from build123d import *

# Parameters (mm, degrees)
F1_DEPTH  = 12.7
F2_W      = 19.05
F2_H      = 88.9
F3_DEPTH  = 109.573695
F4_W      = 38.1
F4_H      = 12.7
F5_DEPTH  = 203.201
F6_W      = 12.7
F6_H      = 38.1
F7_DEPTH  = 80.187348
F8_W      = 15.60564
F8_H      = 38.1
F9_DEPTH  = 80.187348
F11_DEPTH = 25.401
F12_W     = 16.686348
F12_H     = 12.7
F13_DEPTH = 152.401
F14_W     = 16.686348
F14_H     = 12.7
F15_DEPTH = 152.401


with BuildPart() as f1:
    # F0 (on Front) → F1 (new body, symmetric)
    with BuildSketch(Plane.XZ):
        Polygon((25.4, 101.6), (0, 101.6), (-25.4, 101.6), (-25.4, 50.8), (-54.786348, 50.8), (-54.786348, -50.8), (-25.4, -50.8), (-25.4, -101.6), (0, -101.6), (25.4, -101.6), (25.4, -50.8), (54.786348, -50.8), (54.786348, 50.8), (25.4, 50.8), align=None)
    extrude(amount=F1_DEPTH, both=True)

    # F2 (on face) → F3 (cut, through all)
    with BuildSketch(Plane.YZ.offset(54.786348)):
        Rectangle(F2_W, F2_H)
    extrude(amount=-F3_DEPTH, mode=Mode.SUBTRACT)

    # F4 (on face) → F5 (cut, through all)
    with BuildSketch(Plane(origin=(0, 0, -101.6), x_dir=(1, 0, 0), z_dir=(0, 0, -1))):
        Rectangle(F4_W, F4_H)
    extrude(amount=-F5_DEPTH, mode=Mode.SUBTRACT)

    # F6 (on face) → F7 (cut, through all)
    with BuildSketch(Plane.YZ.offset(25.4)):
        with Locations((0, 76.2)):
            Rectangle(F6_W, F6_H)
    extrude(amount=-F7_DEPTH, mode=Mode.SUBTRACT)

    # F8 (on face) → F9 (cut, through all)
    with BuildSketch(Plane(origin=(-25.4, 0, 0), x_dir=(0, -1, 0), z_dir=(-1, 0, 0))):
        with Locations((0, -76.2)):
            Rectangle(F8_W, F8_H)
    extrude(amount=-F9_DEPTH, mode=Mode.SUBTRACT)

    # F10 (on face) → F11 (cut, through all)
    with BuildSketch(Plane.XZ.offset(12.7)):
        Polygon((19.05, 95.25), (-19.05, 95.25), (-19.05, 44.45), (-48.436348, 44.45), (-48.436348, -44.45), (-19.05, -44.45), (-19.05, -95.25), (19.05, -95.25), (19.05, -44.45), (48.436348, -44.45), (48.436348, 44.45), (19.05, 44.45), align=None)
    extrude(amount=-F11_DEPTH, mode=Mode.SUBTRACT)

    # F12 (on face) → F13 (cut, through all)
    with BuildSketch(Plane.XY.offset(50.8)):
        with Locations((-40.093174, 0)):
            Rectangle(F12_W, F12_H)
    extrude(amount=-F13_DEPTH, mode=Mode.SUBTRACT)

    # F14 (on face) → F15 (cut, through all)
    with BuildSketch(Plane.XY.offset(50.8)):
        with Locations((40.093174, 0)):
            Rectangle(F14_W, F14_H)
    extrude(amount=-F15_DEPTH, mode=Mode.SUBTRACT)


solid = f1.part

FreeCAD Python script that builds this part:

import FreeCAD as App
import Part
import Sketcher
Q = App.Units.Quantity

doc = App.newDocument("Part")
body = doc.addObject("PartDesign::Body", "Body")

# Sketch on XZ plane
sketch1 = doc.addObject("Sketcher::SketchObject", "Sketch")
body.addObject(sketch1)
sketch1.AttachmentSupport = (doc.XZ_Plane, [""])
sketch1.MapMode = "FlatFace"
sketch1.addGeometry([
    Part.LineSegment(App.Vector(25.4, 101.6, 0), App.Vector(-25.4, 101.6, 0)),  # 0
    Part.LineSegment(App.Vector(-25.4, 101.6, 0), App.Vector(-25.4, 50.8, 0)),  # 1
    Part.LineSegment(App.Vector(-25.4, 50.8, 0), App.Vector(-54.786348, 50.8, 0)),  # 2
    Part.LineSegment(App.Vector(-54.786348, 50.8, 0), App.Vector(-54.786348, -50.8, 0)),  # 3
    Part.LineSegment(App.Vector(-54.786348, -50.8, 0), App.Vector(-25.4, -50.8, 0)),  # 4
    Part.LineSegment(App.Vector(-25.4, -50.8, 0), App.Vector(-25.4, -101.6, 0)),  # 5
    Part.LineSegment(App.Vector(-25.4, -101.6, 0), App.Vector(25.4, -101.6, 0)),  # 6
    Part.LineSegment(App.Vector(25.4, -101.6, 0), App.Vector(25.4, -50.8, 0)),  # 7
    Part.LineSegment(App.Vector(25.4, -50.8, 0), App.Vector(54.786348, -50.8, 0)),  # 8
    Part.LineSegment(App.Vector(54.786348, -50.8, 0), App.Vector(54.786348, 50.8, 0)),  # 9
    Part.LineSegment(App.Vector(54.786348, 50.8, 0), App.Vector(25.4, 50.8, 0)),  # 10
    Part.LineSegment(App.Vector(25.4, 50.8, 0), App.Vector(25.4, 101.6, 0)),  # 11
], False)
sketch1.addConstraint([
    Sketcher.Constraint("Coincident", 0, 2, 1, 1),
    Sketcher.Constraint("Coincident", 1, 2, 2, 1),
    Sketcher.Constraint("Coincident", 2, 2, 3, 1),
    Sketcher.Constraint("Coincident", 3, 2, 4, 1),
    Sketcher.Constraint("Coincident", 4, 2, 5, 1),
    Sketcher.Constraint("Coincident", 5, 2, 6, 1),
    Sketcher.Constraint("Coincident", 6, 2, 7, 1),
    Sketcher.Constraint("Coincident", 7, 2, 8, 1),
    Sketcher.Constraint("Coincident", 8, 2, 9, 1),
    Sketcher.Constraint("Coincident", 9, 2, 10, 1),
    Sketcher.Constraint("Coincident", 10, 2, 11, 1),
    Sketcher.Constraint("Coincident", 11, 2, 0, 1),
    Sketcher.Constraint("Horizontal", 0),
    Sketcher.Constraint("Vertical", 1),
    Sketcher.Constraint("Horizontal", 2),
    Sketcher.Constraint("Vertical", 3),
    Sketcher.Constraint("Horizontal", 4),
    Sketcher.Constraint("Vertical", 5),
    Sketcher.Constraint("Horizontal", 6),
    Sketcher.Constraint("Vertical", 7),
    Sketcher.Constraint("Horizontal", 8),
    Sketcher.Constraint("Vertical", 9),
    Sketcher.Constraint("Horizontal", 10),
    Sketcher.Constraint("Vertical", 11),
    Sketcher.Constraint("Symmetric", 0, 2, 6, 2, -1, 1),
    Sketcher.Constraint("Symmetric", 2, 2, 8, 2, -1, 1),
    Sketcher.Constraint("Symmetric", 4, 2, 10, 2, -1, 1),
    Sketcher.Constraint("Symmetric", 4, 2, 7, 2, -2),
    Sketcher.Constraint("Equal", 6, 1),
    Sketcher.Constraint("DistanceX", 0, 2, 0, 1, Q("2 in")),
    Sketcher.Constraint("DistanceY", 3, 2, 3, 1, Q("4 in")),
    Sketcher.Constraint("DistanceX", 2, 2, 2, 1, 29.386348),
])
pad1 = doc.addObject("PartDesign::Pad", "Pad")
body.addObject(pad1)
pad1.Profile = sketch1
pad1.Length = Q("1 in")
pad1.Midplane = True

# Sketch on YZ plane
sketch2 = doc.addObject("Sketcher::SketchObject", "Sketch001")
body.addObject(sketch2)
sketch2.AttachmentSupport = (doc.YZ_Plane, [""])
sketch2.MapMode = "FlatFace"
sketch2.AttachmentOffset = App.Placement(App.Vector(0, 0, 54.786348), App.Rotation())
sketch2.addGeometry([
    Part.LineSegment(App.Vector(-9.525, 44.45, 0), App.Vector(-9.525, -44.45, 0)),
    Part.LineSegment(App.Vector(-9.525, -44.45, 0), App.Vector(9.525, -44.45, 0)),
    Part.LineSegment(App.Vector(9.525, -44.45, 0), App.Vector(9.525, 44.45, 0)),
    Part.LineSegment(App.Vector(9.525, 44.45, 0), App.Vector(-9.525, 44.45, 0)),
], False)
sketch2.addConstraint([
    Sketcher.Constraint("Coincident", 0, 2, 1, 1),
    Sketcher.Constraint("Coincident", 1, 2, 2, 1),
    Sketcher.Constraint("Coincident", 2, 2, 3, 1),
    Sketcher.Constraint("Coincident", 3, 2, 0, 1),
    Sketcher.Constraint("Vertical", 0),
    Sketcher.Constraint("Horizontal", 1),
    Sketcher.Constraint("Vertical", 2),
    Sketcher.Constraint("Horizontal", 3),
    Sketcher.Constraint("Symmetric", 0, 2, 2, 2, -1, 1),
    Sketcher.Constraint("DistanceY", 0, 2, 0, 1, Q("3.5 in")),
    Sketcher.Constraint("DistanceX", 1, 1, 1, 2, Q("0.75 in")),
])
pocket1 = doc.addObject("PartDesign::Pocket", "Pocket")
body.addObject(pocket1)
pocket1.Profile = sketch2
pocket1.Type = "ThroughAll"

# Sketch on XY plane
sketch3 = doc.addObject("Sketcher::SketchObject", "Sketch002")
body.addObject(sketch3)
sketch3.AttachmentSupport = (doc.XY_Plane, [""])
sketch3.MapMode = "FlatFace"
sketch3.AttachmentOffset = App.Placement(App.Vector(0, 0, -4 * 25.4), App.Rotation())
sketch3.addGeometry([
    Part.LineSegment(App.Vector(-19.05, -6.35, 0), App.Vector(-19.05, 6.35, 0)),
    Part.LineSegment(App.Vector(-19.05, 6.35, 0), App.Vector(19.05, 6.35, 0)),
    Part.LineSegment(App.Vector(19.05, 6.35, 0), App.Vector(19.05, -6.35, 0)),
    Part.LineSegment(App.Vector(19.05, -6.35, 0), App.Vector(-19.05, -6.35, 0)),
], False)
sketch3.addConstraint([
    Sketcher.Constraint("Coincident", 0, 2, 1, 1),
    Sketcher.Constraint("Coincident", 1, 2, 2, 1),
    Sketcher.Constraint("Coincident", 2, 2, 3, 1),
    Sketcher.Constraint("Coincident", 3, 2, 0, 1),
    Sketcher.Constraint("Vertical", 0),
    Sketcher.Constraint("Horizontal", 1),
    Sketcher.Constraint("Vertical", 2),
    Sketcher.Constraint("Horizontal", 3),
    Sketcher.Constraint("Symmetric", 0, 2, 2, 2, -1, 1),
    Sketcher.Constraint("DistanceX", 1, 1, 1, 2, Q("1.5 in")),
    Sketcher.Constraint("DistanceY", 0, 1, 0, 2, Q("0.5 in")),
])
pocket2 = doc.addObject("PartDesign::Pocket", "Pocket001")
body.addObject(pocket2)
pocket2.Profile = sketch3
pocket2.Type = "ThroughAll"
pocket2.Reversed = True

# Sketch on YZ plane
sketch4 = doc.addObject("Sketcher::SketchObject", "Sketch003")
body.addObject(sketch4)
sketch4.AttachmentSupport = (doc.YZ_Plane, [""])
sketch4.MapMode = "FlatFace"
sketch4.AttachmentOffset = App.Placement(App.Vector(0, 0, 1 * 25.4), App.Rotation())
sketch4.addGeometry([
    Part.LineSegment(App.Vector(-6.35, 95.25, 0), App.Vector(-6.35, 57.15, 0)),
    Part.LineSegment(App.Vector(-6.35, 57.15, 0), App.Vector(6.35, 57.15, 0)),
    Part.LineSegment(App.Vector(6.35, 57.15, 0), App.Vector(6.35, 95.25, 0)),
    Part.LineSegment(App.Vector(6.35, 95.25, 0), App.Vector(-6.35, 95.25, 0)),
], False)
sketch4.addConstraint([
    Sketcher.Constraint("Coincident", 0, 2, 1, 1),
    Sketcher.Constraint("Coincident", 1, 2, 2, 1),
    Sketcher.Constraint("Coincident", 2, 2, 3, 1),
    Sketcher.Constraint("Coincident", 3, 2, 0, 1),
    Sketcher.Constraint("Vertical", 0),
    Sketcher.Constraint("Horizontal", 1),
    Sketcher.Constraint("Vertical", 2),
    Sketcher.Constraint("Horizontal", 3),
    Sketcher.Constraint("DistanceX", 1, 1, 1, 2, Q("0.5 in")),
    Sketcher.Constraint("DistanceY", 0, 2, 0, 1, Q("1.5 in")),
    Sketcher.Constraint("DistanceX", 0, 2, -1, 1, Q("0.25 in")),
    Sketcher.Constraint("DistanceY", -1, 1, 0, 2, Q("2.25 in")),
])
pocket3 = doc.addObject("PartDesign::Pocket", "Pocket002")
body.addObject(pocket3)
pocket3.Profile = sketch4
pocket3.Type = "ThroughAll"

# Sketch on YZ plane
sketch5 = doc.addObject("Sketcher::SketchObject", "Sketch004")
body.addObject(sketch5)
sketch5.AttachmentSupport = (doc.YZ_Plane, [""])
sketch5.MapMode = "FlatFace"
sketch5.AttachmentOffset = App.Placement(App.Vector(0, 0, -1 * 25.4), App.Rotation())
sketch5.addGeometry([
    Part.LineSegment(App.Vector(7.80282, -57.15, 0), App.Vector(7.80282, -95.25, 0)),
    Part.LineSegment(App.Vector(7.80282, -95.25, 0), App.Vector(-7.80282, -95.25, 0)),
    Part.LineSegment(App.Vector(-7.80282, -95.25, 0), App.Vector(-7.80282, -57.15, 0)),
    Part.LineSegment(App.Vector(-7.80282, -57.15, 0), App.Vector(7.80282, -57.15, 0)),
], False)
sketch5.addConstraint([
    Sketcher.Constraint("Coincident", 0, 2, 1, 1),
    Sketcher.Constraint("Coincident", 1, 2, 2, 1),
    Sketcher.Constraint("Coincident", 2, 2, 3, 1),
    Sketcher.Constraint("Coincident", 3, 2, 0, 1),
    Sketcher.Constraint("Vertical", 0),
    Sketcher.Constraint("Horizontal", 1),
    Sketcher.Constraint("Vertical", 2),
    Sketcher.Constraint("Horizontal", 3),
    Sketcher.Constraint("DistanceY", 0, 2, 0, 1, Q("1.5 in")),
    Sketcher.Constraint("DistanceY", 0, 2, -1, 1, Q("3.75 in")),
    Sketcher.Constraint("DistanceX", 1, 2, 1, 1, 15.60564),
    Sketcher.Constraint("DistanceX", -1, 1, 0, 2, 7.80282),
])
pocket4 = doc.addObject("PartDesign::Pocket", "Pocket003")
body.addObject(pocket4)
pocket4.Profile = sketch5
pocket4.Type = "ThroughAll"
pocket4.Reversed = True

# Sketch on XZ plane
sketch6 = doc.addObject("Sketcher::SketchObject", "Sketch005")
body.addObject(sketch6)
sketch6.AttachmentSupport = (doc.XZ_Plane, [""])
sketch6.MapMode = "FlatFace"
sketch6.AttachmentOffset = App.Placement(App.Vector(0, 0, 0.5 * 25.4), App.Rotation())
sketch6.addGeometry([
    Part.LineSegment(App.Vector(19.05, 95.25, 0), App.Vector(-19.05, 95.25, 0)),  # 0
    Part.LineSegment(App.Vector(-19.05, 95.25, 0), App.Vector(-19.05, 44.45, 0)),  # 1
    Part.LineSegment(App.Vector(-19.05, 44.45, 0), App.Vector(-48.436348, 44.45, 0)),  # 2
    Part.LineSegment(App.Vector(-48.436348, 44.45, 0), App.Vector(-48.436348, -44.45, 0)),  # 3
    Part.LineSegment(App.Vector(-48.436348, -44.45, 0), App.Vector(-19.05, -44.45, 0)),  # 4
    Part.LineSegment(App.Vector(-19.05, -44.45, 0), App.Vector(-19.05, -95.25, 0)),  # 5
    Part.LineSegment(App.Vector(-19.05, -95.25, 0), App.Vector(19.05, -95.25, 0)),  # 6
    Part.LineSegment(App.Vector(19.05, -95.25, 0), App.Vector(19.05, -44.45, 0)),  # 7
    Part.LineSegment(App.Vector(19.05, -44.45, 0), App.Vector(48.436348, -44.45, 0)),  # 8
    Part.LineSegment(App.Vector(48.436348, -44.45, 0), App.Vector(48.436348, 44.45, 0)),  # 9
    Part.LineSegment(App.Vector(48.436348, 44.45, 0), App.Vector(19.05, 44.45, 0)),  # 10
    Part.LineSegment(App.Vector(19.05, 44.45, 0), App.Vector(19.05, 95.25, 0)),  # 11
], False)
sketch6.addConstraint([
    Sketcher.Constraint("Coincident", 0, 2, 1, 1),
    Sketcher.Constraint("Coincident", 1, 2, 2, 1),
    Sketcher.Constraint("Coincident", 2, 2, 3, 1),
    Sketcher.Constraint("Coincident", 3, 2, 4, 1),
    Sketcher.Constraint("Coincident", 4, 2, 5, 1),
    Sketcher.Constraint("Coincident", 5, 2, 6, 1),
    Sketcher.Constraint("Coincident", 6, 2, 7, 1),
    Sketcher.Constraint("Coincident", 7, 2, 8, 1),
    Sketcher.Constraint("Coincident", 8, 2, 9, 1),
    Sketcher.Constraint("Coincident", 9, 2, 10, 1),
    Sketcher.Constraint("Coincident", 10, 2, 11, 1),
    Sketcher.Constraint("Coincident", 11, 2, 0, 1),
    Sketcher.Constraint("Horizontal", 0),
    Sketcher.Constraint("Vertical", 1),
    Sketcher.Constraint("Horizontal", 2),
    Sketcher.Constraint("Vertical", 3),
    Sketcher.Constraint("Horizontal", 4),
    Sketcher.Constraint("Vertical", 5),
    Sketcher.Constraint("Horizontal", 6),
    Sketcher.Constraint("Vertical", 7),
    Sketcher.Constraint("Horizontal", 8),
    Sketcher.Constraint("Vertical", 9),
    Sketcher.Constraint("Horizontal", 10),
    Sketcher.Constraint("Vertical", 11),
    Sketcher.Constraint("Symmetric", 0, 2, 6, 2, -1, 1),
    Sketcher.Constraint("Symmetric", 2, 2, 8, 2, -1, 1),
    Sketcher.Constraint("Symmetric", 4, 2, 10, 2, -1, 1),
    Sketcher.Constraint("Symmetric", 4, 2, 7, 2, -2),
    Sketcher.Constraint("DistanceY", 1, 2, 1, 1, Q("2 in")),
    Sketcher.Constraint("DistanceX", 0, 2, 0, 1, Q("1.5 in")),
    Sketcher.Constraint("DistanceY", 3, 2, 3, 1, Q("3.5 in")),
    Sketcher.Constraint("DistanceX", 2, 2, 2, 1, 29.386348),
])
pocket5 = doc.addObject("PartDesign::Pocket", "Pocket004")
body.addObject(pocket5)
pocket5.Profile = sketch6
pocket5.Type = "ThroughAll"

# Sketch on XY plane
sketch7 = doc.addObject("Sketcher::SketchObject", "Sketch006")
body.addObject(sketch7)
sketch7.AttachmentSupport = (doc.XY_Plane, [""])
sketch7.MapMode = "FlatFace"
sketch7.AttachmentOffset = App.Placement(App.Vector(0, 0, 2 * 25.4), App.Rotation())
sketch7.addGeometry([
    Part.LineSegment(App.Vector(-48.436348, 6.35, 0), App.Vector(-48.436348, -6.35, 0)),
    Part.LineSegment(App.Vector(-48.436348, -6.35, 0), App.Vector(-31.75, -6.35, 0)),
    Part.LineSegment(App.Vector(-31.75, -6.35, 0), App.Vector(-31.75, 6.35, 0)),
    Part.LineSegment(App.Vector(-31.75, 6.35, 0), App.Vector(-48.436348, 6.35, 0)),
], False)
sketch7.addConstraint([
    Sketcher.Constraint("Coincident", 0, 2, 1, 1),
    Sketcher.Constraint("Coincident", 1, 2, 2, 1),
    Sketcher.Constraint("Coincident", 2, 2, 3, 1),
    Sketcher.Constraint("Coincident", 3, 2, 0, 1),
    Sketcher.Constraint("Vertical", 0),
    Sketcher.Constraint("Horizontal", 1),
    Sketcher.Constraint("Vertical", 2),
    Sketcher.Constraint("Horizontal", 3),
    Sketcher.Constraint("DistanceY", 0, 2, 0, 1, Q("0.5 in")),
    Sketcher.Constraint("DistanceY", 0, 2, -1, 1, Q("0.25 in")),
    Sketcher.Constraint("DistanceX", 1, 2, -1, 1, Q("1.25 in")),
    Sketcher.Constraint("DistanceX", 1, 1, 1, 2, 16.686348),
])
pocket6 = doc.addObject("PartDesign::Pocket", "Pocket005")
body.addObject(pocket6)
pocket6.Profile = sketch7
pocket6.Type = "ThroughAll"

# Sketch on XY plane
sketch8 = doc.addObject("Sketcher::SketchObject", "Sketch007")
body.addObject(sketch8)
sketch8.AttachmentSupport = (doc.XY_Plane, [""])
sketch8.MapMode = "FlatFace"
sketch8.AttachmentOffset = App.Placement(App.Vector(0, 0, 2 * 25.4), App.Rotation())
sketch8.addGeometry([
    Part.LineSegment(App.Vector(31.75, 6.35, 0), App.Vector(31.75, -6.35, 0)),
    Part.LineSegment(App.Vector(31.75, -6.35, 0), App.Vector(48.436348, -6.35, 0)),
    Part.LineSegment(App.Vector(48.436348, -6.35, 0), App.Vector(48.436348, 6.35, 0)),
    Part.LineSegment(App.Vector(48.436348, 6.35, 0), App.Vector(31.75, 6.35, 0)),
], False)
sketch8.addConstraint([
    Sketcher.Constraint("Coincident", 0, 2, 1, 1),
    Sketcher.Constraint("Coincident", 1, 2, 2, 1),
    Sketcher.Constraint("Coincident", 2, 2, 3, 1),
    Sketcher.Constraint("Coincident", 3, 2, 0, 1),
    Sketcher.Constraint("Vertical", 0),
    Sketcher.Constraint("Horizontal", 1),
    Sketcher.Constraint("Vertical", 2),
    Sketcher.Constraint("Horizontal", 3),
    Sketcher.Constraint("DistanceY", 0, 2, 0, 1, Q("0.5 in")),
    Sketcher.Constraint("DistanceX", -1, 1, 0, 2, Q("1.25 in")),
    Sketcher.Constraint("DistanceY", 0, 2, -1, 1, Q("0.25 in")),
    Sketcher.Constraint("DistanceX", 1, 1, 1, 2, 16.686348),
])
pocket7 = doc.addObject("PartDesign::Pocket", "Pocket006")
body.addObject(pocket7)
pocket7.Profile = sketch8
pocket7.Type = "ThroughAll"

doc.recompute()
